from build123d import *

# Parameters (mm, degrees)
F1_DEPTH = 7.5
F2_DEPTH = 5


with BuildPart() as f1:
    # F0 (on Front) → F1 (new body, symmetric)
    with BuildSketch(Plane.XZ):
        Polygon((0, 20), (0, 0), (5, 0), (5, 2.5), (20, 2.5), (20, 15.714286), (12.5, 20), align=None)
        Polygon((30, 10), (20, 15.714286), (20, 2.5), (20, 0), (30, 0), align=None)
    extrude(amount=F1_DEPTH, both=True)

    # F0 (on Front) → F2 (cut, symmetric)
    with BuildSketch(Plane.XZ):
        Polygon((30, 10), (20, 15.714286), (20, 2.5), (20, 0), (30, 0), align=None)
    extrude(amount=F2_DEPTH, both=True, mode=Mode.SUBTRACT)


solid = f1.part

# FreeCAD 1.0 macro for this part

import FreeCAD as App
import Part
import Sketcher

V = App.Vector
Q = App.Units.Quantity


def add_polygon(sketch, points):
    """Adds a closed chain of lines whose ends are joined by coincident constraints."""
    first, n = sketch.GeometryCount, len(points)
    for a, b in zip(points, points[1:] + points[:1]):
        sketch.addGeometry(Part.LineSegment(App.Vector(*a, 0), App.Vector(*b, 0)), False)
    for i in range(n):
        sketch.addConstraint(Sketcher.Constraint("Coincident", first + i, 2, first + (i + 1) % n, 1))

doc = App.newDocument("Part")
body = doc.addObject("PartDesign::Body", "Body")

# Sketch on XZ plane
sketch1 = body.newObject("Sketcher::SketchObject", "Sketch")
sketch1.AttachmentSupport = (doc.getObject("XZ_Plane"), [""])
sketch1.MapMode = "FlatFace"
add_polygon(sketch1, [(0, 20), (0, 0), (5, 0), (5, 2.5), (20, 2.5), (20, 0), (30, 0), (30, 10), (20, 15.7), (12.5, 20)])  # lines 0-9
sketch1.addConstraint([
    Sketcher.Constraint("Vertical", 0),
    Sketcher.Constraint("Horizontal", 1),
    Sketcher.Constraint("Vertical", 2),
    Sketcher.Constraint("Horizontal", 3),
    Sketcher.Constraint("Vertical", 4),
    Sketcher.Constraint("Horizontal", 5),
    Sketcher.Constraint("Vertical", 6),
    Sketcher.Constraint("Horizontal", 9),
    Sketcher.Constraint("Coincident", 0, 2, -1, 1),
    Sketcher.Constraint("PointOnObject", 4, 2, -1),
    Sketcher.Constraint("Parallel", 7, 8),
    Sketcher.Constraint("Vertical", 4, 2, 7, 2),
    Sketcher.Constraint("Equal", 5, 6),
    Sketcher.Constraint("DistanceX", 1, 1, 1, 2, Q("5 mm")),
    Sketcher.Constraint("DistanceX", 3, 1, 3, 2, Q("15 mm")),
    Sketcher.Constraint("DistanceX", 5, 1, 5, 2, Q("10 mm")),
    Sketcher.Constraint("DistanceY", 0, 2, 0, 1, Q("20 mm")),
    Sketcher.Constraint("DistanceX", 9, 2, 9, 1, Q("12.5 mm")),
    Sketcher.Constraint("DistanceY", 2, 1, 2, 2, Q("2.5 mm")),
])
pad1 = body.newObject("PartDesign::Pad", "Pad")
pad1.Profile = sketch1
pad1.Length = 15
pad1.Midplane = True

# Sketch on XZ plane
sketch2 = body.newObject("Sketcher::SketchObject", "Sketch001")
sketch2.AttachmentSupport = (doc.getObject("XZ_Plane"), [""])
sketch2.MapMode = "FlatFace"
add_polygon(sketch2, [(30, 10), (20, 16), (20, 0), (30, 0)])  # lines 0-3
sketch2.addConstraint([
    Sketcher.Constraint("Vertical", 1),
    Sketcher.Constraint("Horizontal", 2),
    Sketcher.Constraint("Vertical", 3),
    Sketcher.Constraint("PointOnObject", 1, 2, -1),
    Sketcher.Constraint("Equal", 2, 3),
    Sketcher.Constraint("DistanceX", 2, 1, 2, 2, Q("10 mm")),
    Sketcher.Constraint("DistanceX", -1, 1, 0, 2, Q("20 mm")),
    Sketcher.Constraint("Distance", 0, Q("11.517511 mm")),
])
pocket1 = body.newObject("PartDesign::Pocket", "Pocket")
pocket1.Profile = sketch2
pocket1.Length = 10
pocket1.Midplane = True

doc.recompute()
